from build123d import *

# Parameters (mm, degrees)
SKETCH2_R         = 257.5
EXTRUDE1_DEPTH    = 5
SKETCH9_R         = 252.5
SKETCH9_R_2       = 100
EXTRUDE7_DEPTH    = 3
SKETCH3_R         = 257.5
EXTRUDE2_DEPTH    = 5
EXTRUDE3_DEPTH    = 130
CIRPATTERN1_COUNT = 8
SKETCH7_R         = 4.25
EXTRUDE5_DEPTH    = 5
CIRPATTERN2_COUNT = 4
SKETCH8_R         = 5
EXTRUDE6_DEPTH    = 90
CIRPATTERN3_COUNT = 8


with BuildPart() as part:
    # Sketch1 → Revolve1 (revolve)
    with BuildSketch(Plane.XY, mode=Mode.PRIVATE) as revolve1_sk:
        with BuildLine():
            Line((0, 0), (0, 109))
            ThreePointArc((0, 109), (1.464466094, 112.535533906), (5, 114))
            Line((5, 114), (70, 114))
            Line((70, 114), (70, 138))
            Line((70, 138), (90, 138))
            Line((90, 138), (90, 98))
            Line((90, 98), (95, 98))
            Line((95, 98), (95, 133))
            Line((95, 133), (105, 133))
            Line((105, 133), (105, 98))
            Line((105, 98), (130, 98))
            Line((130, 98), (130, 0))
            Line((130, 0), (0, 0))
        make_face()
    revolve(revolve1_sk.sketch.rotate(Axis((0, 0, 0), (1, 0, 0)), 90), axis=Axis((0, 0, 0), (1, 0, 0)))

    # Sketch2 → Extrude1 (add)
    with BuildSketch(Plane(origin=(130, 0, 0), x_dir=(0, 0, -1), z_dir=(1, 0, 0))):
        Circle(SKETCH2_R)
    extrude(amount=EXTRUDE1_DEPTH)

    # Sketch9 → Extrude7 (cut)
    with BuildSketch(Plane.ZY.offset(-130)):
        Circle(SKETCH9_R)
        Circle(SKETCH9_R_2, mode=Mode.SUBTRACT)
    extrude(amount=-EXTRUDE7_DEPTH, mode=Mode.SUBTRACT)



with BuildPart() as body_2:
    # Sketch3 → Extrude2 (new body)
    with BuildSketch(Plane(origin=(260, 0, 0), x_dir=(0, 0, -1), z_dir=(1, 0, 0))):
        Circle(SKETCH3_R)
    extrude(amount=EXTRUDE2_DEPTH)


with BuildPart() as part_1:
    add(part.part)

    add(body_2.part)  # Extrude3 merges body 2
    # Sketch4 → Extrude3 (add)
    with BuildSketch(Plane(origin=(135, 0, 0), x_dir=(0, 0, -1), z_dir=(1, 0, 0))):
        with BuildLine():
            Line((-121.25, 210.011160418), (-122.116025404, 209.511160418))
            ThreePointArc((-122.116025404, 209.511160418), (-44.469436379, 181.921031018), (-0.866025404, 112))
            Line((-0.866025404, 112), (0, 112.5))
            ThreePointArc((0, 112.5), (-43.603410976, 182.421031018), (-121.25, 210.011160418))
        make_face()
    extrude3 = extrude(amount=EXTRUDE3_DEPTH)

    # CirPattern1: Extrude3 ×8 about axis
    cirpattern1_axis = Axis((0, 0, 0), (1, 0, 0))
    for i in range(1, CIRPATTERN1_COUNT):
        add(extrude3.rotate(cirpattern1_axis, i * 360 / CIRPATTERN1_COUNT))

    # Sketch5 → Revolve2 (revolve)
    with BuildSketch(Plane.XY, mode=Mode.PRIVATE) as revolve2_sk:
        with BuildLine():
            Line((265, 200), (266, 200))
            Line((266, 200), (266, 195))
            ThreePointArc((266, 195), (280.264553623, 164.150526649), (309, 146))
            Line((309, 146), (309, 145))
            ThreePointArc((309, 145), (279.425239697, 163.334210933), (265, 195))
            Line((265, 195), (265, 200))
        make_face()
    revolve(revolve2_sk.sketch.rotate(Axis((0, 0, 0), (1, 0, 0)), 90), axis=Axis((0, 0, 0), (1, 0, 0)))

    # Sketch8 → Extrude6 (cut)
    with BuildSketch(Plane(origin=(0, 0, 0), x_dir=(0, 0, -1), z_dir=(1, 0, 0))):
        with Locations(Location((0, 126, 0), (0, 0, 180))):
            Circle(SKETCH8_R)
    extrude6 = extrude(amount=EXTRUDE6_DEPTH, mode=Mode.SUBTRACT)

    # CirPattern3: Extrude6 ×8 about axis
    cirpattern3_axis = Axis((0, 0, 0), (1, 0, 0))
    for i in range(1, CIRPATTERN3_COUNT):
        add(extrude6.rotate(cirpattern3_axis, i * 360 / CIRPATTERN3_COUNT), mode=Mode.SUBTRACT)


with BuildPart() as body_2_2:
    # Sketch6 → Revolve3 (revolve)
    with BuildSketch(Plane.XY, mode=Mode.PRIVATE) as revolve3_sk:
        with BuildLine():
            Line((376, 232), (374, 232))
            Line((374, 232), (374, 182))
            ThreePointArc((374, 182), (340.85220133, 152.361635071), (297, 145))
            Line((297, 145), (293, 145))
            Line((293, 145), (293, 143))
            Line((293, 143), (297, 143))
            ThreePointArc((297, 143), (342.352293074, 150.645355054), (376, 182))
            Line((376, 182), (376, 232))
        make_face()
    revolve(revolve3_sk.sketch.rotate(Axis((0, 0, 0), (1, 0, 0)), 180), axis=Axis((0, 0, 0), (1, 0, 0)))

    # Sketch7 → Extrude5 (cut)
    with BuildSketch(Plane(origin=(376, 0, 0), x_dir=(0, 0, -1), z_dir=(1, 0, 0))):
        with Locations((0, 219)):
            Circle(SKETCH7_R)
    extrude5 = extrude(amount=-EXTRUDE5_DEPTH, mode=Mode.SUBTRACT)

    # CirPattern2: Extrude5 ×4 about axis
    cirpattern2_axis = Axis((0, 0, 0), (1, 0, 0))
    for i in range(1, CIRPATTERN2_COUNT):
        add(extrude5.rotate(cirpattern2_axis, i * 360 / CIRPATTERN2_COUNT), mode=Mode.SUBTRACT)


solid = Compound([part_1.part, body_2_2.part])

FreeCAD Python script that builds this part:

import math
import FreeCAD as App
import Part
import Sketcher

V = App.Vector
Q = App.Units.Quantity

doc = App.newDocument("Part")
body = doc.addObject("PartDesign::Body", "Body")

sketch1 = body.newObject("Sketcher::SketchObject", "Sketch")
sketch1.AttachmentSupport = (doc.getObject("XY_Plane"), [""])
sketch1.MapMode = "FlatFace"
sketch1.addGeometry([
    Part.LineSegment(V(0, 109, 0), V(0, 0, 0)),
    Part.LineSegment(V(0, 0, 0), V(130, 0, 0)),
    Part.LineSegment(V(130, 0, 0), V(130, 98, 0)),
    Part.LineSegment(V(130, 98, 0), V(105, 98, 0)),
    Part.LineSegment(V(105, 98, 0), V(105, 133, 0)),
    Part.LineSegment(V(105, 133, 0), V(95, 133, 0)),
    Part.LineSegment(V(95, 133, 0), V(95, 98, 0)),
    Part.LineSegment(V(95, 98, 0), V(90, 98, 0)),
    Part.LineSegment(V(90, 98, 0), V(90, 138, 0)),
    Part.LineSegment(V(90, 138, 0), V(70, 138, 0)),
    Part.LineSegment(V(70, 138, 0), V(70, 114, 0)),
    Part.LineSegment(V(70, 114, 0), V(5, 114, 0)),
    Part.ArcOfCircle(Part.Circle(V(5, 109, 0), V(0, 0, 1), 5), math.radians(90), math.radians(180)),
], False)
sketch1.addConstraint([
    Sketcher.Constraint("Coincident", 0, 2, 1, 1),
    Sketcher.Constraint("Coincident", 1, 2, 2, 1),
    Sketcher.Constraint("Coincident", 2, 2, 3, 1),
    Sketcher.Constraint("Coincident", 3, 2, 4, 1),
    Sketcher.Constraint("Coincident", 4, 2, 5, 1),
    Sketcher.Constraint("Coincident", 5, 2, 6, 1),
    Sketcher.Constraint("Coincident", 6, 2, 7, 1),
    Sketcher.Constraint("Coincident", 7, 2, 8, 1),
    Sketcher.Constraint("Coincident", 8, 2, 9, 1),
    Sketcher.Constraint("Coincident", 9, 2, 10, 1),
    Sketcher.Constraint("Coincident", 10, 2, 11, 1),
    Sketcher.Constraint("Tangent", 11, 2, 12, 1),
    Sketcher.Constraint("Tangent", 12, 2, 0, 1),
    Sketcher.Constraint("Vertical", 0),
    Sketcher.Constraint("Horizontal", 1),
    Sketcher.Constraint("Vertical", 2),
    Sketcher.Constraint("Horizontal", 3),
    Sketcher.Constraint("Vertical", 4),
    Sketcher.Constraint("Horizontal", 5),
    Sketcher.Constraint("Vertical", 6),
    Sketcher.Constraint("Horizontal", 7),
    Sketcher.Constraint("Vertical", 8),
    Sketcher.Constraint("Horizontal", 9),
    Sketcher.Constraint("Vertical", 10),
    Sketcher.Constraint("Horizontal", 11),
    Sketcher.Constraint("Coincident", 0, 2, -1, 1),
    Sketcher.Constraint("Horizontal", 3, 2, 6, 2),
    Sketcher.Constraint("Radius", 12, Q("5 mm")),
    Sketcher.Constraint("DistanceX", 1, 1, 1, 2, Q("130 mm")),
    Sketcher.Constraint("DistanceX", 3, 2, 3, 1, Q("25 mm")),
    Sketcher.Constraint("DistanceX", 5, 2, 5, 1, Q("10 mm")),
    Sketcher.Constraint("DistanceX", 7, 2, 7, 1, Q("5 mm")),
    Sketcher.Constraint("DistanceX", 9, 2, 9, 1, Q("20 mm")),
    Sketcher.Constraint("DistanceY", 0, 2, 0, 1, Q("109 mm")),
    Sketcher.Constraint("DistanceY", 2, 1, 2, 2, Q("98 mm")),
    Sketcher.Constraint("DistanceY", 4, 1, 4, 2, Q("35 mm")),
    Sketcher.Constraint("DistanceY", 8, 1, 8, 2, Q("40 mm")),
])
revolution = body.newObject("PartDesign::Revolution", "Revolution")
revolution.Profile = sketch1
revolution.ReferenceAxis = (sketch1, ["H_Axis"])
revolution.Angle = 360

sketch2 = body.newObject("Sketcher::SketchObject", "Sketch001")
sketch2.AttachmentSupport = (doc.getObject("YZ_Plane"), [""])
sketch2.MapMode = "FlatFace"
sketch2.AttachmentOffset = App.Placement(V(0, 0, 130), App.Rotation())
sketch2.addGeometry(Part.Circle(V(0, 0, 0), V(0, 0, 1), 257.5), False)
sketch2.addConstraint([
    Sketcher.Constraint("Coincident", 0, 3, -1, 1),
    Sketcher.Constraint("Diameter", 0, Q("515 mm")),
])
pad1 = body.newObject("PartDesign::Pad", "Pad")
pad1.Profile = sketch2
pad1.Length = 5

sketch3 = body.newObject("Sketcher::SketchObject", "Sketch002")
sketch3.AttachmentSupport = (doc.getObject("YZ_Plane"), [""])
sketch3.MapMode = "FlatFace"
sketch3.AttachmentOffset = App.Placement(V(0, 0, 130), App.Rotation())
sketch3.addGeometry([
    Part.Circle(V(0, 0, 0), V(0, 0, 1), 252.5),
    Part.Circle(V(0, 0, 0), V(0, 0, 1), 100),
], False)
sketch3.addConstraint([
    Sketcher.Constraint("Coincident", 0, 3, -1, 1),
    Sketcher.Constraint("Coincident", 1, 3, -1, 1),
    Sketcher.Constraint("Diameter", 0, Q("505 mm")),
    Sketcher.Constraint("Diameter", 1, Q("200 mm")),
])
pocket1 = body.newObject("PartDesign::Pocket", "Pocket")
pocket1.Profile = sketch3
pocket1.Length = 3
pocket1.Reversed = True
body2 = doc.addObject("PartDesign::Body", "Body001")

sketch4 = body2.newObject("Sketcher::SketchObject", "Sketch003")
sketch4.AttachmentSupport = (doc.getObject("YZ_Plane001"), [""])
sketch4.MapMode = "FlatFace"
sketch4.AttachmentOffset = App.Placement(V(0, 0, 260), App.Rotation())
sketch4.addGeometry(Part.Circle(V(0, 0, 0), V(0, 0, 1), 257.5), False)
sketch4.addConstraint([
    Sketcher.Constraint("Coincident", 0, 3, -1, 1),
    Sketcher.Constraint("Diameter", 0, Q("515 mm")),
])
pad2 = body2.newObject("PartDesign::Pad", "Pad001")
pad2.Profile = sketch4
pad2.Length = 5
body.AllowCompound = True
doc.recompute()

boolean = body.newObject("PartDesign::Boolean", "Boolean")
boolean.Type = "Fuse"
boolean.addObjects([body2])

sketch5 = body.newObject("Sketcher::SketchObject", "Sketch004")
sketch5.AttachmentSupport = (doc.getObject("YZ_Plane"), [""])
sketch5.MapMode = "FlatFace"
sketch5.AttachmentOffset = App.Placement(V(0, 0, 135), App.Rotation())
sketch5.addGeometry([
    Part.LineSegment(V(210.01116, 121.25, 0), V(209.51116, 122.116025, 0)),
    Part.ArcOfCircle(Part.Circle(V(84.513067, 122.806456, 0), V(0, 0, 1), 125), math.radians(-77.297107), math.radians(-0.316472)),
    Part.LineSegment(V(112, 0.866025, 0), V(112.5, 0, 0)),
    Part.ArcOfCircle(Part.Circle(V(85.013067, 121.94043, 0), V(0, 0, 1), 125), math.radians(-77.297107), math.radians(-0.316472)),
], False)
sketch5.addConstraint([
    Sketcher.Constraint("Coincident", 0, 2, 1, 2),
    Sketcher.Constraint("Coincident", 1, 1, 2, 1),
    Sketcher.Constraint("Coincident", 2, 2, 3, 1),
    Sketcher.Constraint("Coincident", 3, 2, 0, 1),
    Sketcher.Constraint("Equal", 1, 3),
    Sketcher.Constraint("PointOnObject", 2, 2, -1),
    Sketcher.Constraint("Parallel", 0, 2),
    Sketcher.Constraint("Equal", 0, 2),
    Sketcher.Constraint("Radius", 1, Q("125 mm")),
    Sketcher.Constraint("Angle", 0, Q("120 deg")),
    Sketcher.Constraint("Distance", 0, Q("1 mm")),
    Sketcher.Constraint("DistanceX", -1, 1, 1, 1, Q("112 mm")),
    Sketcher.Constraint("DistanceY", -1, 1, 3, 2, Q("121.25 mm")),
    Sketcher.Constraint("DistanceY", -1, 1, 3, 3, Q("121.94043 mm")),
])
pad3 = body.newObject("PartDesign::Pad", "Pad002")
pad3.Profile = sketch5
pad3.Length = 130
doc.recompute()

polarpattern = body.newObject("PartDesign::PolarPattern", "PolarPattern")
polarpattern.Originals = [pad3]
polarpattern.Axis = (doc.getObject("X_Axis"), [""])
polarpattern.Angle = 360
polarpattern.Occurrences = 8
body.Tip = polarpattern

sketch6 = body.newObject("Sketcher::SketchObject", "Sketch005")
sketch6.AttachmentSupport = (doc.getObject("XY_Plane"), [""])
sketch6.MapMode = "FlatFace"
sketch6.addGeometry([
    Part.LineSegment(V(266, 200, 0), V(265, 200, 0)),
    Part.LineSegment(V(265, 200, 0), V(265, 195, 0)),
    Part.ArcOfCircle(Part.Circle(V(324.468051, 202.971885, 0), V(0, 0, 1), 60), math.radians(-172.364834), math.radians(-104.939612)),
    Part.LineSegment(V(309, 145, 0), V(309, 146, 0)),
    Part.ArcOfCircle(Part.Circle(V(325.362095, 203.72592, 0), V(0, 0, 1), 60), math.radians(-171.637704), math.radians(-105.82509)),
    Part.LineSegment(V(266, 195, 0), V(266, 200, 0)),
], False)
sketch6.addConstraint([
    Sketcher.Constraint("Coincident", 0, 2, 1, 1),
    Sketcher.Constraint("Coincident", 1, 2, 2, 1),
    Sketcher.Constraint("Coincident", 2, 2, 3, 1),
    Sketcher.Constraint("Coincident", 3, 2, 4, 2),
    Sketcher.Constraint("Coincident", 4, 1, 5, 1),
    Sketcher.Constraint("Coincident", 5, 2, 0, 1),
    Sketcher.Constraint("Horizontal", 0),
    Sketcher.Constraint("Vertical", 1),
    Sketcher.Constraint("Vertical", 3),
    Sketcher.Constraint("Vertical", 5),
    Sketcher.Constraint("Equal", 2, 4),
    Sketcher.Constraint("Horizontal", 1, 2, 4, 1),
    Sketcher.Constraint("Equal", 0, 3),
    Sketcher.Constraint("Radius", 2, Q("60 mm")),
    Sketcher.Constraint("DistanceX", 0, 2, 0, 1, Q("1 mm")),
    Sketcher.Constraint("DistanceY", 1, 2, 1, 1, Q("5 mm")),
    Sketcher.Constraint("DistanceX", -1, 1, 0, 2, Q("265 mm")),
    Sketcher.Constraint("DistanceY", -1, 1, 0, 2, Q("200 mm")),
    Sketcher.Constraint("DistanceX", -1, 1, 2, 2, Q("309 mm")),
    Sketcher.Constraint("DistanceY", -1, 1, 2, 2, Q("145 mm")),
])
revolution2 = body.newObject("PartDesign::Revolution", "Revolution001")
revolution2.Profile = sketch6
revolution2.ReferenceAxis = (sketch6, ["H_Axis"])
revolution2.Angle = 360

sketch7 = body.newObject("Sketcher::SketchObject", "Sketch006")
sketch7.AttachmentSupport = (doc.getObject("YZ_Plane"), [""])
sketch7.MapMode = "FlatFace"
sketch7.addGeometry(Part.Circle(V(126, 0, 0), V(0, 0, 1), 5), False)
sketch7.addConstraint([
    Sketcher.Constraint("PointOnObject", 0, 3, -1),
    Sketcher.Constraint("Diameter", 0, Q("10 mm")),
    Sketcher.Constraint("DistanceX", -1, 1, 0, 3, Q("126 mm")),
])
pocket2 = body.newObject("PartDesign::Pocket", "Pocket001")
pocket2.Profile = sketch7
pocket2.Length = 90
pocket2.Reversed = True
doc.recompute()

polarpattern2 = body.newObject("PartDesign::PolarPattern", "PolarPattern001")
polarpattern2.Originals = [pocket2]
polarpattern2.Axis = (doc.getObject("X_Axis"), [""])
polarpattern2.Angle = 360
polarpattern2.Occurrences = 8
body.Tip = polarpattern2
body3 = doc.addObject("PartDesign::Body", "Body002")

sketch8 = body3.newObject("Sketcher::SketchObject", "Sketch007")
sketch8.AttachmentSupport = (doc.getObject("XY_Plane002"), [""])
sketch8.MapMode = "FlatFace"
sketch8.addGeometry([
    Part.LineSegment(V(376, 232, 0), V(374, 232, 0)),
    Part.LineSegment(V(374, 232, 0), V(374, 182, 0)),
    Part.ArcOfCircle(Part.Circle(V(306.203275, 224.46886, 0), V(0, 0, 1), 80), math.radians(-96.605986), math.radians(-32.063631)),
    Part.LineSegment(V(297, 145, 0), V(293, 145, 0)),
    Part.LineSegment(V(293, 145, 0), V(293, 143, 0)),
    Part.LineSegment(V(293, 143, 0), V(297, 143, 0)),
    Part.ArcOfCircle(Part.Circle(V(306.938881, 222.380216, 0), V(0, 0, 1), 80), math.radians(-97.136639), math.radians(-30.314937)),
    Part.LineSegment(V(376, 182, 0), V(376, 232, 0)),
], False)
sketch8.addConstraint([
    Sketcher.Constraint("Coincident", 0, 2, 1, 1),
    Sketcher.Constraint("Coincident", 1, 2, 2, 2),
    Sketcher.Constraint("Coincident", 2, 1, 3, 1),
    Sketcher.Constraint("Coincident", 3, 2, 4, 1),
    Sketcher.Constraint("Coincident", 4, 2, 5, 1),
    Sketcher.Constraint("Coincident", 5, 2, 6, 1),
    Sketcher.Constraint("Coincident", 6, 2, 7, 1),
    Sketcher.Constraint("Coincident", 7, 2, 0, 1),
    Sketcher.Constraint("Horizontal", 0),
    Sketcher.Constraint("Vertical", 1),
    Sketcher.Constraint("Horizontal", 3),
    Sketcher.Constraint("Vertical", 4),
    Sketcher.Constraint("Horizontal", 5),
    Sketcher.Constraint("Vertical", 7),
    Sketcher.Constraint("Equal", 2, 6),
    Sketcher.Constraint("Horizontal", 1, 2, 6, 2),
    Sketcher.Constraint("Vertical", 2, 1, 5, 2),
    Sketcher.Constraint("Equal", 0, 4),
    Sketcher.Constraint("Radius", 2, Q("80 mm")),
    Sketcher.Constraint("DistanceX", 0, 2, 0, 1, Q("2 mm")),
    Sketcher.Constraint("DistanceX", 3, 2, 3, 1, Q("4 mm")),
    Sketcher.Constraint("DistanceY", 1, 2, 1, 1, Q("50 mm")),
    Sketcher.Constraint("DistanceX", -1, 1, 0, 2, Q("374 mm")),
    Sketcher.Constraint("DistanceY", -1, 1, 0, 2, Q("232 mm")),
    Sketcher.Constraint("DistanceX", -1, 1, 2, 1, Q("297 mm")),
    Sketcher.Constraint("DistanceY", -1, 1, 2, 1, Q("145 mm")),
])
revolution3 = body3.newObject("PartDesign::Revolution", "Revolution002")
revolution3.Profile = sketch8
revolution3.ReferenceAxis = (sketch8, ["H_Axis"])
revolution3.Angle = 360

sketch9 = body3.newObject("Sketcher::SketchObject", "Sketch008")
sketch9.AttachmentSupport = (doc.getObject("YZ_Plane002"), [""])
sketch9.MapMode = "FlatFace"
sketch9.AttachmentOffset = App.Placement(V(0, 0, 376), App.Rotation())
sketch9.addGeometry(Part.Circle(V(219, 0, 0), V(0, 0, 1), 4.25), False)
sketch9.addConstraint([
    Sketcher.Constraint("PointOnObject", 0, 3, -1),
    Sketcher.Constraint("Diameter", 0, Q("8.5 mm")),
    Sketcher.Constraint("DistanceX", -1, 1, 0, 3, Q("219 mm")),
])
pocket3 = body3.newObject("PartDesign::Pocket", "Pocket002")
pocket3.Profile = sketch9
pocket3.Length = 5
doc.recompute()

polarpattern3 = body3.newObject("PartDesign::PolarPattern", "PolarPattern002")
polarpattern3.Originals = [pocket3]
polarpattern3.Axis = (doc.getObject("X_Axis002"), [""])
polarpattern3.Angle = 360
polarpattern3.Occurrences = 4
body3.Tip = polarpattern3

doc.recompute()
